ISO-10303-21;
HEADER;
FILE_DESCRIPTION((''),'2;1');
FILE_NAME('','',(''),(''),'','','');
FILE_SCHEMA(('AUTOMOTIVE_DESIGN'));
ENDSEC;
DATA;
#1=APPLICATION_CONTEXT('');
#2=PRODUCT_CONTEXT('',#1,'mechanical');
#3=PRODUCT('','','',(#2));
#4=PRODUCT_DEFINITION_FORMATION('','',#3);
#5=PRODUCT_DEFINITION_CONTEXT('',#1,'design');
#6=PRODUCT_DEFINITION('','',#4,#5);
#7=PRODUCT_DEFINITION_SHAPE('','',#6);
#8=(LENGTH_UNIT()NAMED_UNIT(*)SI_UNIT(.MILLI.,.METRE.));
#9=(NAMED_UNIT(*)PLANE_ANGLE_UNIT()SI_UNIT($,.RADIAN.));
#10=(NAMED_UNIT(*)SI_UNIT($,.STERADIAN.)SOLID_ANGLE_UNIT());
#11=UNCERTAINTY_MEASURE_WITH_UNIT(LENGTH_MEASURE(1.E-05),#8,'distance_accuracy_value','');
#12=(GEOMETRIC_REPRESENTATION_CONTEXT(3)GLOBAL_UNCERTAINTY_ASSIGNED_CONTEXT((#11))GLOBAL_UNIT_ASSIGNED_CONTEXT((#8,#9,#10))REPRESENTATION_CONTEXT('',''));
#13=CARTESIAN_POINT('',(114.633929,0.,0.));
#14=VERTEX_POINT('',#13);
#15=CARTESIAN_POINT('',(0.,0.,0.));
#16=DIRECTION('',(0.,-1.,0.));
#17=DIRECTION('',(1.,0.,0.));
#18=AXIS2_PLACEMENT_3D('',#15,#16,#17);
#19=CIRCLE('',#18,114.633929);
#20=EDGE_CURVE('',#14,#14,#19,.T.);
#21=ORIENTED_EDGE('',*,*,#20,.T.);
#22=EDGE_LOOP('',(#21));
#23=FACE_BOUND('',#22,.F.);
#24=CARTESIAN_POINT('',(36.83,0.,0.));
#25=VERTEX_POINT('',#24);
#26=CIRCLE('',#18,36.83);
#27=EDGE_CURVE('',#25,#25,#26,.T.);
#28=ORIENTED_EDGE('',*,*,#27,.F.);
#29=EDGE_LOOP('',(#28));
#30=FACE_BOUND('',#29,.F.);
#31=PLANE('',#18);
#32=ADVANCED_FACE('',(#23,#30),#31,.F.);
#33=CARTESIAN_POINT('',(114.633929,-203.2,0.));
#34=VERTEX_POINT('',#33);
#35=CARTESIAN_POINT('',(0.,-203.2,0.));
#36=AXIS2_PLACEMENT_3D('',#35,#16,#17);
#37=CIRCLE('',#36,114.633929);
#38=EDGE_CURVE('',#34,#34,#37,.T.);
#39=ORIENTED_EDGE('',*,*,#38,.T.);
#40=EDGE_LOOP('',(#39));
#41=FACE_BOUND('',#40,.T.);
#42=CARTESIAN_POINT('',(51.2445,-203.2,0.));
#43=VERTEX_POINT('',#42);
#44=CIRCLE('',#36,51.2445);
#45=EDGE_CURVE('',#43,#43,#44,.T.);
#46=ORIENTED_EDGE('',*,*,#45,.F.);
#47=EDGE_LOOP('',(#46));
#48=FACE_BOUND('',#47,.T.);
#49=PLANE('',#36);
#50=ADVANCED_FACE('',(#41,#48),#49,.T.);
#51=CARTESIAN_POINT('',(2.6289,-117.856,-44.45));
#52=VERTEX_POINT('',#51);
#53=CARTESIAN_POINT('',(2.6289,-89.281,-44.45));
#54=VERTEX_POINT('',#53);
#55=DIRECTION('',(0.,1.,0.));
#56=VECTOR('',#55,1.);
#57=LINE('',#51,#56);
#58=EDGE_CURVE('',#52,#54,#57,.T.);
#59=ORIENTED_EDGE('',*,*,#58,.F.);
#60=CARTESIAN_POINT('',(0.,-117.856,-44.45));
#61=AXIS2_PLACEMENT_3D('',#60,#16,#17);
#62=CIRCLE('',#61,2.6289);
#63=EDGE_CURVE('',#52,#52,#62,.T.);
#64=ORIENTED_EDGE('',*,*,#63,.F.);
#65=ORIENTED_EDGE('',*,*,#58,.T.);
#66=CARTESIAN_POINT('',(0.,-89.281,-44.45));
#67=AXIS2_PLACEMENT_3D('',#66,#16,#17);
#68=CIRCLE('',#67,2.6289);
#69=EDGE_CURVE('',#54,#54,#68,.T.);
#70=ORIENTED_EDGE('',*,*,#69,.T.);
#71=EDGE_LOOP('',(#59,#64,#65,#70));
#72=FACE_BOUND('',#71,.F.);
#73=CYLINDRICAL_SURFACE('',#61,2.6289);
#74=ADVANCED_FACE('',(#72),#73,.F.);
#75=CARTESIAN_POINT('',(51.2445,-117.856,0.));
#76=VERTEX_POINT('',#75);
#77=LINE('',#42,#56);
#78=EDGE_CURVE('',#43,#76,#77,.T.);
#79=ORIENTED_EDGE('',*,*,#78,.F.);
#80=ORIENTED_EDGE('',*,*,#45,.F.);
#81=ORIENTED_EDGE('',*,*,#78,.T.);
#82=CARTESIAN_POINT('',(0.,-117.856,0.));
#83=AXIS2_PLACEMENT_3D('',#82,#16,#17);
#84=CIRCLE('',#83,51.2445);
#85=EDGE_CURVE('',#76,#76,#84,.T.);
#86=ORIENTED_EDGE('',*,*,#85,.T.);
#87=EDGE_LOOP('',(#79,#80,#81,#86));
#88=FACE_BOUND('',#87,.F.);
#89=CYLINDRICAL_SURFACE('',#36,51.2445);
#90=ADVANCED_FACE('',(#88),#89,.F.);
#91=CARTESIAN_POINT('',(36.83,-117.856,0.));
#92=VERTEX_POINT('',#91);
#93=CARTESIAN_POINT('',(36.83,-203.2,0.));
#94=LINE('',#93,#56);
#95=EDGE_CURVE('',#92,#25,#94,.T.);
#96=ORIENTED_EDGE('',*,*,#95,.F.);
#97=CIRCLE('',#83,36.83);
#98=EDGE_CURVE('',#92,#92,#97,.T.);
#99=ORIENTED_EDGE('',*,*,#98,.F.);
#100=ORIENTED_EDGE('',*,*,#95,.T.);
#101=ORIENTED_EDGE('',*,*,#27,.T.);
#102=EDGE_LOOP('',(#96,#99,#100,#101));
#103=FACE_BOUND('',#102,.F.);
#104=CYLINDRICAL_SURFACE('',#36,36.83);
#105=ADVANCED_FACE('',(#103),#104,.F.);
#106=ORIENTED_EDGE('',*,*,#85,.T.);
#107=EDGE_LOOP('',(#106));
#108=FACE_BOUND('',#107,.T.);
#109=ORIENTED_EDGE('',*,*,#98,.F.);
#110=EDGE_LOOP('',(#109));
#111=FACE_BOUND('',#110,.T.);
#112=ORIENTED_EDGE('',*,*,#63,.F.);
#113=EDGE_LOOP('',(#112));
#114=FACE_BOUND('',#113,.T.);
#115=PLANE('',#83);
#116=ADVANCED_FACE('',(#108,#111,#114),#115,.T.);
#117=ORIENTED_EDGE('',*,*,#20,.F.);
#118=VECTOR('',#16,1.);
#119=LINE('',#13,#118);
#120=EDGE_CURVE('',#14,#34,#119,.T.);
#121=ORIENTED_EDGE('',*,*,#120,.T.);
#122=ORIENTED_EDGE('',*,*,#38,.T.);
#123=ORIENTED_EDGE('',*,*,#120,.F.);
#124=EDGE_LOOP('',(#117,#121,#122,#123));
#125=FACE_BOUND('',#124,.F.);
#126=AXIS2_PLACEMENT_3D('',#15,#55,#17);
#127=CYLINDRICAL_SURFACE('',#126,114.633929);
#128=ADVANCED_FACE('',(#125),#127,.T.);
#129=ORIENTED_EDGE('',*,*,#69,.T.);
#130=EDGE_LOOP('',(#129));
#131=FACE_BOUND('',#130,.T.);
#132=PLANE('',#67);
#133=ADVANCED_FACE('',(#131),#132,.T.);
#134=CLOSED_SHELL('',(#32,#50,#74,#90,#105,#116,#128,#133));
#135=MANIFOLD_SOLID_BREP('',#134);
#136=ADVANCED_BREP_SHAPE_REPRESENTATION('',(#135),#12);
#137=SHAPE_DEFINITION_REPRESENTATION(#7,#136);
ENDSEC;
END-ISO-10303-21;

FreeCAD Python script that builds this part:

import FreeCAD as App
import Part
import Sketcher

V = App.Vector
Q = App.Units.Quantity

doc = App.newDocument("Part")
body = doc.addObject("PartDesign::Body", "Body")

# Sketch on XZ plane
sketch1 = body.newObject("Sketcher::SketchObject", "Sketch")
sketch1.AttachmentSupport = (doc.getObject("XZ_Plane"), [""])
sketch1.MapMode = "FlatFace"
sketch1.addGeometry(Part.Circle(V(0, 0, 0), V(0, 0, 1), 115), False)
sketch1.addConstraint(Sketcher.Constraint("Coincident", 0, 3, -1, 1))
sketch1.addConstraint(Sketcher.Constraint("Diameter", 0, 229.267858))
pad1 = body.newObject("PartDesign::Pad", "Pad")
pad1.Profile = sketch1
pad1.Length = Q("8 in")

# Sketch on XZ plane
sketch2 = body.newObject("Sketcher::SketchObject", "Sketch001")
sketch2.AttachmentSupport = (doc.getObject("XZ_Plane"), [""])
sketch2.MapMode = "FlatFace"
sketch2.AttachmentOffset = App.Placement(V(0, 0, 8 * 25.4), App.Rotation())
sketch2.addGeometry(Part.Circle(V(0, 0, 0), V(0, 0, 1), 37), False)
sketch2.addConstraint(Sketcher.Constraint("Coincident", 0, 3, -1, 1))
sketch2.addConstraint(Sketcher.Constraint("Diameter", 0, Q("2.9 in")))
pocket1 = body.newObject("PartDesign::Pocket", "Pocket")
pocket1.Profile = sketch2
pocket1.Length = Q("14 in")

# Sketch on XZ plane
sketch3 = body.newObject("Sketcher::SketchObject", "Sketch002")
sketch3.AttachmentSupport = (doc.getObject("XZ_Plane"), [""])
sketch3.MapMode = "FlatFace"
sketch3.AttachmentOffset = App.Placement(V(0, 0, 8 * 25.4), App.Rotation())
sketch3.addGeometry(Part.Circle(V(0, 0, 0), V(0, 0, 1), 51), False)
sketch3.addConstraint(Sketcher.Constraint("Coincident", 0, 3, -1, 1))
sketch3.addConstraint(Sketcher.Constraint("Diameter", 0, Q("4.035 in")))
pocket2 = body.newObject("PartDesign::Pocket", "Pocket001")
pocket2.Profile = sketch3
pocket2.Length = Q("3.36 in")

# Sketch on XZ plane
sketch4 = body.newObject("Sketcher::SketchObject", "Sketch003")
sketch4.AttachmentSupport = (doc.getObject("XZ_Plane"), [""])
sketch4.MapMode = "FlatFace"
sketch4.AttachmentOffset = App.Placement(V(0, 0, 4.64 * 25.4), App.Rotation())
sketch4.addGeometry(Part.Circle(V(0, -44.5, 0), V(0, 0, 1), 2.6), False)
sketch4.addConstraint(Sketcher.Constraint("PointOnObject", 0, 3, -2))
sketch4.addConstraint(Sketcher.Constraint("Diameter", 0, Q("0.207 in")))
sketch4.addConstraint(Sketcher.Constraint("DistanceY", 0, 3, -1, 1, Q("1.75 in")))
pocket3 = body.newObject("PartDesign::Pocket", "Pocket002")
pocket3.Profile = sketch4
pocket3.Length = Q("1.125 in")

doc.recompute()
